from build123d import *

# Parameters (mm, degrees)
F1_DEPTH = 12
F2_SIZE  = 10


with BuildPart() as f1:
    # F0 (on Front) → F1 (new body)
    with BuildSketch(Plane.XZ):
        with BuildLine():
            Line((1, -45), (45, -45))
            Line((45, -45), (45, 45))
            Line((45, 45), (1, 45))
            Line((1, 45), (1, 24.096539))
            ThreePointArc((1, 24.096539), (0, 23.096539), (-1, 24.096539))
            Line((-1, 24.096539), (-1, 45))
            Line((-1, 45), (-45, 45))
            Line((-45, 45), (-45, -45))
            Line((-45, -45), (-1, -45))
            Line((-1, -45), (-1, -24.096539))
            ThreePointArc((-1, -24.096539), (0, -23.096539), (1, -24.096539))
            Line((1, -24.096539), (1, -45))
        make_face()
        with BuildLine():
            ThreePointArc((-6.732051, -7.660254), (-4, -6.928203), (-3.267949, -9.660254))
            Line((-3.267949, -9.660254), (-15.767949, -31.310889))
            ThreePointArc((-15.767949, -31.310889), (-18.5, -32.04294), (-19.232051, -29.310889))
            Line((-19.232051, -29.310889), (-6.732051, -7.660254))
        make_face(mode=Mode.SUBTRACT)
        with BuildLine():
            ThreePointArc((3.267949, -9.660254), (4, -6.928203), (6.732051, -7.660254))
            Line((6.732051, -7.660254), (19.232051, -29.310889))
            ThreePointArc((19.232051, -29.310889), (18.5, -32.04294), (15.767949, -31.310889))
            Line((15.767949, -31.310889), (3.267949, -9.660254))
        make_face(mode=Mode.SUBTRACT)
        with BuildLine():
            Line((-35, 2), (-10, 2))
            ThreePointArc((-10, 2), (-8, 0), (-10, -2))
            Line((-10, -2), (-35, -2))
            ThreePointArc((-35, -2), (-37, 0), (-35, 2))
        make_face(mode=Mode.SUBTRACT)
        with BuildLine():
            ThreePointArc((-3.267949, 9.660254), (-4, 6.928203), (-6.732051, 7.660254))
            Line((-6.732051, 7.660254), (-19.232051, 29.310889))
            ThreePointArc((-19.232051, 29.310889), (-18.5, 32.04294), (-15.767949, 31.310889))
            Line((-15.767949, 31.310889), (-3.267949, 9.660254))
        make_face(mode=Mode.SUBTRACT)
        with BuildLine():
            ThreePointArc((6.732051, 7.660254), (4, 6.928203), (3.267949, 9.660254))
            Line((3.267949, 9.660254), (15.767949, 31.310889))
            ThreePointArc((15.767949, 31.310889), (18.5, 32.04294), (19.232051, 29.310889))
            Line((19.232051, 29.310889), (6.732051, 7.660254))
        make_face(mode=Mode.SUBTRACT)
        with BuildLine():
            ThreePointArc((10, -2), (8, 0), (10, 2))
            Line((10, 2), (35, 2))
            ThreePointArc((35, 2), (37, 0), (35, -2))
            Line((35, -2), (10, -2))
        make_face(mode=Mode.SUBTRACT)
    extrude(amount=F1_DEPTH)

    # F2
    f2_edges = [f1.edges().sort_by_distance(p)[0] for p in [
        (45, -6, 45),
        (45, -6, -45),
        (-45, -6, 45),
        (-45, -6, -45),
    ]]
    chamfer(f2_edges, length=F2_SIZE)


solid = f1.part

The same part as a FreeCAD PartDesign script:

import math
import FreeCAD as App
import Part
import Sketcher
Q = App.Units.Quantity


def edges_at(feature, points):
    """Names of the edges that pass closest to the given points."""
    edges = feature.Shape.Edges
    near = lambda p: min(range(len(edges)), key=lambda i: edges[i].distToShape(Part.Vertex(*p))[0])
    return sorted({f"Edge{near(p) + 1}" for p in points})

doc = App.newDocument("Part")
body = doc.addObject("PartDesign::Body", "Body")

# Sketch on XZ plane
sketch1 = body.newObject("Sketcher::SketchObject", "Sketch")
sketch1.AttachmentSupport = (doc.getObject("XZ_Plane"), [""])
sketch1.MapMode = "FlatFace"
sketch1.addGeometry(Part.LineSegment(App.Vector(1, -45, 0), App.Vector(45, -45, 0)), False)
sketch1.addGeometry(Part.LineSegment(App.Vector(45, -45, 0), App.Vector(45, 45, 0)), False)
sketch1.addGeometry(Part.LineSegment(App.Vector(45, 45, 0), App.Vector(1, 45, 0)), False)
sketch1.addGeometry(Part.LineSegment(App.Vector(1, 45, 0), App.Vector(1, 24.1, 0)), False)
sketch1.addGeometry(Part.ArcOfCircle(Part.Circle(App.Vector(0, 24.1, 0), App.Vector(0, 0, 1), 1), math.radians(180), math.radians(360)), False)
sketch1.addGeometry(Part.LineSegment(App.Vector(-1, 24.1, 0), App.Vector(-1, 45, 0)), False)
sketch1.addGeometry(Part.LineSegment(App.Vector(-1, 45, 0), App.Vector(-45, 45, 0)), False)
sketch1.addGeometry(Part.LineSegment(App.Vector(-45, 45, 0), App.Vector(-45, -45, 0)), False)
sketch1.addGeometry(Part.LineSegment(App.Vector(-45, -45, 0), App.Vector(-1, -45, 0)), False)
sketch1.addGeometry(Part.LineSegment(App.Vector(-1, -45, 0), App.Vector(-1, -24.1, 0)), False)
sketch1.addGeometry(Part.ArcOfCircle(Part.Circle(App.Vector(0, -24.1, 0), App.Vector(0, 0, 1), 1), math.radians(0), math.radians(180)), False)
sketch1.addGeometry(Part.LineSegment(App.Vector(1, -24.1, 0), App.Vector(1, -45, 0)), False)
sketch1.addGeometry(Part.LineSegment(App.Vector(-19.2, -29.3, 0), App.Vector(-6.7, -7.7, 0)), False)
sketch1.addGeometry(Part.ArcOfCircle(Part.Circle(App.Vector(-5, -8.7, 0), App.Vector(0, 0, 1), 2), math.radians(-30), math.radians(150)), False)
sketch1.addGeometry(Part.LineSegment(App.Vector(-3.3, -9.7, 0), App.Vector(-15.8, -31.3, 0)), False)
sketch1.addGeometry(Part.ArcOfCircle(Part.Circle(App.Vector(-17.5, -30.3, 0), App.Vector(0, 0, 1), 2), math.radians(150), math.radians(330)), False)
sketch1.addGeometry(Part.LineSegment(App.Vector(15.8, -31.3, 0), App.Vector(3.3, -9.7, 0)), False)
sketch1.addGeometry(Part.ArcOfCircle(Part.Circle(App.Vector(5, -8.7, 0), App.Vector(0, 0, 1), 2), math.radians(30), math.radians(210)), False)
sketch1.addGeometry(Part.LineSegment(App.Vector(6.7, -7.7, 0), App.Vector(19.2, -29.3, 0)), False)
sketch1.addGeometry(Part.ArcOfCircle(Part.Circle(App.Vector(17.5, -30.3, 0), App.Vector(0, 0, 1), 2), math.radians(-150), math.radians(30)), False)
sketch1.addGeometry(Part.ArcOfCircle(Part.Circle(App.Vector(-35, 0, 0), App.Vector(0, 0, 1), 2), math.radians(90), math.radians(270)), False)
sketch1.addGeometry(Part.LineSegment(App.Vector(-35, 2, 0), App.Vector(-10, 2, 0)), False)
sketch1.addGeometry(Part.ArcOfCircle(Part.Circle(App.Vector(-10, 0, 0), App.Vector(0, 0, 1), 2), math.radians(-90), math.radians(90)), False)
sketch1.addGeometry(Part.LineSegment(App.Vector(-10, -2, 0), App.Vector(-35, -2, 0)), False)
sketch1.addGeometry(Part.LineSegment(App.Vector(-15.8, 31.3, 0), App.Vector(-3.3, 9.7, 0)), False)
sketch1.addGeometry(Part.ArcOfCircle(Part.Circle(App.Vector(-5, 8.7, 0), App.Vector(0, 0, 1), 2), math.radians(-150), math.radians(30)), False)
sketch1.addGeometry(Part.LineSegment(App.Vector(-6.7, 7.7, 0), App.Vector(-19.2, 29.3, 0)), False)
sketch1.addGeometry(Part.ArcOfCircle(Part.Circle(App.Vector(-17.5, 30.3, 0), App.Vector(0, 0, 1), 2), math.radians(30), math.radians(210)), False)
sketch1.addGeometry(Part.LineSegment(App.Vector(35, -2, 0), App.Vector(10, -2, 0)), False)
sketch1.addGeometry(Part.ArcOfCircle(Part.Circle(App.Vector(10, 0, 0), App.Vector(0, 0, 1), 2), math.radians(90), math.radians(270)), False)
sketch1.addGeometry(Part.LineSegment(App.Vector(10, 2, 0), App.Vector(35, 2, 0)), False)
sketch1.addGeometry(Part.ArcOfCircle(Part.Circle(App.Vector(35, 0, 0), App.Vector(0, 0, 1), 2), math.radians(-90), math.radians(90)), False)
sketch1.addGeometry(Part.LineSegment(App.Vector(19.2, 29.3, 0), App.Vector(6.7, 7.7, 0)), False)
sketch1.addGeometry(Part.ArcOfCircle(Part.Circle(App.Vector(5, 8.7, 0), App.Vector(0, 0, 1), 2), math.radians(150), math.radians(330)), False)
sketch1.addGeometry(Part.LineSegment(App.Vector(3.3, 9.7, 0), App.Vector(15.8, 31.3, 0)), False)
sketch1.addGeometry(Part.ArcOfCircle(Part.Circle(App.Vector(17.5, 30.3, 0), App.Vector(0, 0, 1), 2), math.radians(-30), math.radians(150)), False)
sketch1.addConstraint(Sketcher.Constraint("Coincident", 0, 2, 1, 1))
sketch1.addConstraint(Sketcher.Constraint("Coincident", 1, 2, 2, 1))
sketch1.addConstraint(Sketcher.Constraint("Coincident", 2, 2, 3, 1))
sketch1.addConstraint(Sketcher.Constraint("Tangent", 3, 2, 4, 2))
sketch1.addConstraint(Sketcher.Constraint("Tangent", 4, 1, 5, 1))
sketch1.addConstraint(Sketcher.Constraint("Coincident", 5, 2, 6, 1))
sketch1.addConstraint(Sketcher.Constraint("Coincident", 6, 2, 7, 1))
sketch1.addConstraint(Sketcher.Constraint("Coincident", 7, 2, 8, 1))
sketch1.addConstraint(Sketcher.Constraint("Coincident", 8, 2, 9, 1))
sketch1.addConstraint(Sketcher.Constraint("Tangent", 9, 2, 10, 2))
sketch1.addConstraint(Sketcher.Constraint("Tangent", 10, 1, 11, 1))
sketch1.addConstraint(Sketcher.Constraint("Coincident", 11, 2, 0, 1))
sketch1.addConstraint(Sketcher.Constraint("Tangent", 12, 2, 13, 2))
sketch1.addConstraint(Sketcher.Constraint("Tangent", 13, 1, 14, 1))
sketch1.addConstraint(Sketcher.Constraint("Tangent", 14, 2, 15, 2))
sketch1.addConstraint(Sketcher.Constraint("Tangent", 15, 1, 12, 1))
sketch1.addConstraint(Sketcher.Constraint("Tangent", 16, 2, 17, 2))
sketch1.addConstraint(Sketcher.Constraint("Tangent", 17, 1, 18, 1))
sketch1.addConstraint(Sketcher.Constraint("Tangent", 18, 2, 19, 2))
sketch1.addConstraint(Sketcher.Constraint("Tangent", 19, 1, 16, 1))
sketch1.addConstraint(Sketcher.Constraint("Tangent", 20, 1, 21, 1))
sketch1.addConstraint(Sketcher.Constraint("Tangent", 21, 2, 22, 2))
sketch1.addConstraint(Sketcher.Constraint("Tangent", 22, 1, 23, 1))
sketch1.addConstraint(Sketcher.Constraint("Tangent", 23, 2, 20, 2))
sketch1.addConstraint(Sketcher.Constraint("Tangent", 24, 2, 25, 2))
sketch1.addConstraint(Sketcher.Constraint("Tangent", 25, 1, 26, 1))
sketch1.addConstraint(Sketcher.Constraint("Tangent", 26, 2, 27, 2))
sketch1.addConstraint(Sketcher.Constraint("Tangent", 27, 1, 24, 1))
sketch1.addConstraint(Sketcher.Constraint("Tangent", 28, 2, 29, 2))
sketch1.addConstraint(Sketcher.Constraint("Tangent", 29, 1, 30, 1))
sketch1.addConstraint(Sketcher.Constraint("Tangent", 30, 2, 31, 2))
sketch1.addConstraint(Sketcher.Constraint("Tangent", 31, 1, 28, 1))
sketch1.addConstraint(Sketcher.Constraint("Tangent", 32, 2, 33, 2))
sketch1.addConstraint(Sketcher.Constraint("Tangent", 33, 1, 34, 1))
sketch1.addConstraint(Sketcher.Constraint("Tangent", 34, 2, 35, 2))
sketch1.addConstraint(Sketcher.Constraint("Tangent", 35, 1, 32, 1))
sketch1.addConstraint(Sketcher.Constraint("Horizontal", 0))
sketch1.addConstraint(Sketcher.Constraint("Vertical", 1))
sketch1.addConstraint(Sketcher.Constraint("Horizontal", 2))
sketch1.addConstraint(Sketcher.Constraint("Vertical", 3))
sketch1.addConstraint(Sketcher.Constraint("Vertical", 5))
sketch1.addConstraint(Sketcher.Constraint("Horizontal", 6))
sketch1.addConstraint(Sketcher.Constraint("Vertical", 7))
sketch1.addConstraint(Sketcher.Constraint("Horizontal", 8))
sketch1.addConstraint(Sketcher.Constraint("Vertical", 9))
sketch1.addConstraint(Sketcher.Constraint("Vertical", 11))
sketch1.addConstraint(Sketcher.Constraint("Horizontal", 21))
sketch1.addConstraint(Sketcher.Constraint("Horizontal", 23))
sketch1.addConstraint(Sketcher.Constraint("Horizontal", 28))
sketch1.addConstraint(Sketcher.Constraint("Horizontal", 30))
sketch1.addConstraint(Sketcher.Constraint("Equal", 4, 10))
sketch1.addConstraint(Sketcher.Constraint("Equal", 13, 15))
sketch1.addConstraint(Sketcher.Constraint("Equal", 15, 17))
sketch1.addConstraint(Sketcher.Constraint("Equal", 17, 19))
sketch1.addConstraint(Sketcher.Constraint("Equal", 19, 20))
sketch1.addConstraint(Sketcher.Constraint("Equal", 22, 25))
sketch1.addConstraint(Sketcher.Constraint("Equal", 25, 27))
sketch1.addConstraint(Sketcher.Constraint("Equal", 27, 29))
sketch1.addConstraint(Sketcher.Constraint("Equal", 31, 33))
sketch1.addConstraint(Sketcher.Constraint("Equal", 33, 35))
sketch1.addConstraint(Sketcher.Constraint("Symmetric", 4, 3, 10, 3, -1, 1))
sketch1.addConstraint(Sketcher.Constraint("Symmetric", 17, 3, 25, 3, -1, 1))
sketch1.addConstraint(Sketcher.Constraint("Symmetric", 19, 3, 27, 3, -1, 1))
sketch1.addConstraint(Sketcher.Constraint("Symmetric", 22, 3, 29, 3, -1, 1))
sketch1.addConstraint(Sketcher.Constraint("Symmetric", 13, 3, 33, 3, -1, 1))
sketch1.addConstraint(Sketcher.Constraint("Symmetric", 15, 3, 35, 3, -1, 1))
sketch1.addConstraint(Sketcher.Constraint("Symmetric", 0, 2, 6, 2, -1, 1))
sketch1.addConstraint(Sketcher.Constraint("Symmetric", 13, 3, 17, 3, -2))
sketch1.addConstraint(Sketcher.Constraint("Symmetric", 15, 3, 19, 3, -2))
sketch1.addConstraint(Sketcher.Constraint("Symmetric", 20, 3, 31, 3, -2))
sketch1.addConstraint(Sketcher.Constraint("Symmetric", 2, 2, 5, 2, -2))
sketch1.addConstraint(Sketcher.Constraint("Horizontal", 0, 2, 7, 2))
sketch1.addConstraint(Sketcher.Constraint("Radius", 4, 1.0))
sketch1.addConstraint(Sketcher.Constraint("Radius", 13, 2.0))
sketch1.addConstraint(Sketcher.Constraint("DistanceX", 0, 1, 0, 2, 44.0))
sketch1.addConstraint(Sketcher.Constraint("DistanceX", 21, 1, 21, 2, 25.0))
sketch1.addConstraint(Sketcher.Constraint("DistanceY", 1, 1, 1, 2, 90.0))
sketch1.addConstraint(Sketcher.Constraint("Angle", 12, Q("60 deg")))
sketch1.addConstraint(Sketcher.Constraint("Distance", 12, 25.0))
sketch1.addConstraint(Sketcher.Constraint("DistanceX", 13, 3, -1, 1, 5.0))
sketch1.addConstraint(Sketcher.Constraint("DistanceX", 20, 3, -1, 1, 35.0))
sketch1.addConstraint(Sketcher.Constraint("DistanceY", 3, 2, 3, 1, 20.903461))
sketch1.addConstraint(Sketcher.Constraint("DistanceY", 15, 3, -1, 1, 30.310889))
pad1 = body.newObject("PartDesign::Pad", "Pad")
pad1.Profile = sketch1
pad1.Length = 12
doc.recompute()

chamfer = body.newObject("PartDesign::Chamfer", "Chamfer")
chamfer.Base = (pad1, edges_at(pad1, [
    (45, -6, 45),
    (45, -6, -45),
    (-45, -6, 45),
    (-45, -6, -45),
]))
chamfer.Size = 10

doc.recompute()
